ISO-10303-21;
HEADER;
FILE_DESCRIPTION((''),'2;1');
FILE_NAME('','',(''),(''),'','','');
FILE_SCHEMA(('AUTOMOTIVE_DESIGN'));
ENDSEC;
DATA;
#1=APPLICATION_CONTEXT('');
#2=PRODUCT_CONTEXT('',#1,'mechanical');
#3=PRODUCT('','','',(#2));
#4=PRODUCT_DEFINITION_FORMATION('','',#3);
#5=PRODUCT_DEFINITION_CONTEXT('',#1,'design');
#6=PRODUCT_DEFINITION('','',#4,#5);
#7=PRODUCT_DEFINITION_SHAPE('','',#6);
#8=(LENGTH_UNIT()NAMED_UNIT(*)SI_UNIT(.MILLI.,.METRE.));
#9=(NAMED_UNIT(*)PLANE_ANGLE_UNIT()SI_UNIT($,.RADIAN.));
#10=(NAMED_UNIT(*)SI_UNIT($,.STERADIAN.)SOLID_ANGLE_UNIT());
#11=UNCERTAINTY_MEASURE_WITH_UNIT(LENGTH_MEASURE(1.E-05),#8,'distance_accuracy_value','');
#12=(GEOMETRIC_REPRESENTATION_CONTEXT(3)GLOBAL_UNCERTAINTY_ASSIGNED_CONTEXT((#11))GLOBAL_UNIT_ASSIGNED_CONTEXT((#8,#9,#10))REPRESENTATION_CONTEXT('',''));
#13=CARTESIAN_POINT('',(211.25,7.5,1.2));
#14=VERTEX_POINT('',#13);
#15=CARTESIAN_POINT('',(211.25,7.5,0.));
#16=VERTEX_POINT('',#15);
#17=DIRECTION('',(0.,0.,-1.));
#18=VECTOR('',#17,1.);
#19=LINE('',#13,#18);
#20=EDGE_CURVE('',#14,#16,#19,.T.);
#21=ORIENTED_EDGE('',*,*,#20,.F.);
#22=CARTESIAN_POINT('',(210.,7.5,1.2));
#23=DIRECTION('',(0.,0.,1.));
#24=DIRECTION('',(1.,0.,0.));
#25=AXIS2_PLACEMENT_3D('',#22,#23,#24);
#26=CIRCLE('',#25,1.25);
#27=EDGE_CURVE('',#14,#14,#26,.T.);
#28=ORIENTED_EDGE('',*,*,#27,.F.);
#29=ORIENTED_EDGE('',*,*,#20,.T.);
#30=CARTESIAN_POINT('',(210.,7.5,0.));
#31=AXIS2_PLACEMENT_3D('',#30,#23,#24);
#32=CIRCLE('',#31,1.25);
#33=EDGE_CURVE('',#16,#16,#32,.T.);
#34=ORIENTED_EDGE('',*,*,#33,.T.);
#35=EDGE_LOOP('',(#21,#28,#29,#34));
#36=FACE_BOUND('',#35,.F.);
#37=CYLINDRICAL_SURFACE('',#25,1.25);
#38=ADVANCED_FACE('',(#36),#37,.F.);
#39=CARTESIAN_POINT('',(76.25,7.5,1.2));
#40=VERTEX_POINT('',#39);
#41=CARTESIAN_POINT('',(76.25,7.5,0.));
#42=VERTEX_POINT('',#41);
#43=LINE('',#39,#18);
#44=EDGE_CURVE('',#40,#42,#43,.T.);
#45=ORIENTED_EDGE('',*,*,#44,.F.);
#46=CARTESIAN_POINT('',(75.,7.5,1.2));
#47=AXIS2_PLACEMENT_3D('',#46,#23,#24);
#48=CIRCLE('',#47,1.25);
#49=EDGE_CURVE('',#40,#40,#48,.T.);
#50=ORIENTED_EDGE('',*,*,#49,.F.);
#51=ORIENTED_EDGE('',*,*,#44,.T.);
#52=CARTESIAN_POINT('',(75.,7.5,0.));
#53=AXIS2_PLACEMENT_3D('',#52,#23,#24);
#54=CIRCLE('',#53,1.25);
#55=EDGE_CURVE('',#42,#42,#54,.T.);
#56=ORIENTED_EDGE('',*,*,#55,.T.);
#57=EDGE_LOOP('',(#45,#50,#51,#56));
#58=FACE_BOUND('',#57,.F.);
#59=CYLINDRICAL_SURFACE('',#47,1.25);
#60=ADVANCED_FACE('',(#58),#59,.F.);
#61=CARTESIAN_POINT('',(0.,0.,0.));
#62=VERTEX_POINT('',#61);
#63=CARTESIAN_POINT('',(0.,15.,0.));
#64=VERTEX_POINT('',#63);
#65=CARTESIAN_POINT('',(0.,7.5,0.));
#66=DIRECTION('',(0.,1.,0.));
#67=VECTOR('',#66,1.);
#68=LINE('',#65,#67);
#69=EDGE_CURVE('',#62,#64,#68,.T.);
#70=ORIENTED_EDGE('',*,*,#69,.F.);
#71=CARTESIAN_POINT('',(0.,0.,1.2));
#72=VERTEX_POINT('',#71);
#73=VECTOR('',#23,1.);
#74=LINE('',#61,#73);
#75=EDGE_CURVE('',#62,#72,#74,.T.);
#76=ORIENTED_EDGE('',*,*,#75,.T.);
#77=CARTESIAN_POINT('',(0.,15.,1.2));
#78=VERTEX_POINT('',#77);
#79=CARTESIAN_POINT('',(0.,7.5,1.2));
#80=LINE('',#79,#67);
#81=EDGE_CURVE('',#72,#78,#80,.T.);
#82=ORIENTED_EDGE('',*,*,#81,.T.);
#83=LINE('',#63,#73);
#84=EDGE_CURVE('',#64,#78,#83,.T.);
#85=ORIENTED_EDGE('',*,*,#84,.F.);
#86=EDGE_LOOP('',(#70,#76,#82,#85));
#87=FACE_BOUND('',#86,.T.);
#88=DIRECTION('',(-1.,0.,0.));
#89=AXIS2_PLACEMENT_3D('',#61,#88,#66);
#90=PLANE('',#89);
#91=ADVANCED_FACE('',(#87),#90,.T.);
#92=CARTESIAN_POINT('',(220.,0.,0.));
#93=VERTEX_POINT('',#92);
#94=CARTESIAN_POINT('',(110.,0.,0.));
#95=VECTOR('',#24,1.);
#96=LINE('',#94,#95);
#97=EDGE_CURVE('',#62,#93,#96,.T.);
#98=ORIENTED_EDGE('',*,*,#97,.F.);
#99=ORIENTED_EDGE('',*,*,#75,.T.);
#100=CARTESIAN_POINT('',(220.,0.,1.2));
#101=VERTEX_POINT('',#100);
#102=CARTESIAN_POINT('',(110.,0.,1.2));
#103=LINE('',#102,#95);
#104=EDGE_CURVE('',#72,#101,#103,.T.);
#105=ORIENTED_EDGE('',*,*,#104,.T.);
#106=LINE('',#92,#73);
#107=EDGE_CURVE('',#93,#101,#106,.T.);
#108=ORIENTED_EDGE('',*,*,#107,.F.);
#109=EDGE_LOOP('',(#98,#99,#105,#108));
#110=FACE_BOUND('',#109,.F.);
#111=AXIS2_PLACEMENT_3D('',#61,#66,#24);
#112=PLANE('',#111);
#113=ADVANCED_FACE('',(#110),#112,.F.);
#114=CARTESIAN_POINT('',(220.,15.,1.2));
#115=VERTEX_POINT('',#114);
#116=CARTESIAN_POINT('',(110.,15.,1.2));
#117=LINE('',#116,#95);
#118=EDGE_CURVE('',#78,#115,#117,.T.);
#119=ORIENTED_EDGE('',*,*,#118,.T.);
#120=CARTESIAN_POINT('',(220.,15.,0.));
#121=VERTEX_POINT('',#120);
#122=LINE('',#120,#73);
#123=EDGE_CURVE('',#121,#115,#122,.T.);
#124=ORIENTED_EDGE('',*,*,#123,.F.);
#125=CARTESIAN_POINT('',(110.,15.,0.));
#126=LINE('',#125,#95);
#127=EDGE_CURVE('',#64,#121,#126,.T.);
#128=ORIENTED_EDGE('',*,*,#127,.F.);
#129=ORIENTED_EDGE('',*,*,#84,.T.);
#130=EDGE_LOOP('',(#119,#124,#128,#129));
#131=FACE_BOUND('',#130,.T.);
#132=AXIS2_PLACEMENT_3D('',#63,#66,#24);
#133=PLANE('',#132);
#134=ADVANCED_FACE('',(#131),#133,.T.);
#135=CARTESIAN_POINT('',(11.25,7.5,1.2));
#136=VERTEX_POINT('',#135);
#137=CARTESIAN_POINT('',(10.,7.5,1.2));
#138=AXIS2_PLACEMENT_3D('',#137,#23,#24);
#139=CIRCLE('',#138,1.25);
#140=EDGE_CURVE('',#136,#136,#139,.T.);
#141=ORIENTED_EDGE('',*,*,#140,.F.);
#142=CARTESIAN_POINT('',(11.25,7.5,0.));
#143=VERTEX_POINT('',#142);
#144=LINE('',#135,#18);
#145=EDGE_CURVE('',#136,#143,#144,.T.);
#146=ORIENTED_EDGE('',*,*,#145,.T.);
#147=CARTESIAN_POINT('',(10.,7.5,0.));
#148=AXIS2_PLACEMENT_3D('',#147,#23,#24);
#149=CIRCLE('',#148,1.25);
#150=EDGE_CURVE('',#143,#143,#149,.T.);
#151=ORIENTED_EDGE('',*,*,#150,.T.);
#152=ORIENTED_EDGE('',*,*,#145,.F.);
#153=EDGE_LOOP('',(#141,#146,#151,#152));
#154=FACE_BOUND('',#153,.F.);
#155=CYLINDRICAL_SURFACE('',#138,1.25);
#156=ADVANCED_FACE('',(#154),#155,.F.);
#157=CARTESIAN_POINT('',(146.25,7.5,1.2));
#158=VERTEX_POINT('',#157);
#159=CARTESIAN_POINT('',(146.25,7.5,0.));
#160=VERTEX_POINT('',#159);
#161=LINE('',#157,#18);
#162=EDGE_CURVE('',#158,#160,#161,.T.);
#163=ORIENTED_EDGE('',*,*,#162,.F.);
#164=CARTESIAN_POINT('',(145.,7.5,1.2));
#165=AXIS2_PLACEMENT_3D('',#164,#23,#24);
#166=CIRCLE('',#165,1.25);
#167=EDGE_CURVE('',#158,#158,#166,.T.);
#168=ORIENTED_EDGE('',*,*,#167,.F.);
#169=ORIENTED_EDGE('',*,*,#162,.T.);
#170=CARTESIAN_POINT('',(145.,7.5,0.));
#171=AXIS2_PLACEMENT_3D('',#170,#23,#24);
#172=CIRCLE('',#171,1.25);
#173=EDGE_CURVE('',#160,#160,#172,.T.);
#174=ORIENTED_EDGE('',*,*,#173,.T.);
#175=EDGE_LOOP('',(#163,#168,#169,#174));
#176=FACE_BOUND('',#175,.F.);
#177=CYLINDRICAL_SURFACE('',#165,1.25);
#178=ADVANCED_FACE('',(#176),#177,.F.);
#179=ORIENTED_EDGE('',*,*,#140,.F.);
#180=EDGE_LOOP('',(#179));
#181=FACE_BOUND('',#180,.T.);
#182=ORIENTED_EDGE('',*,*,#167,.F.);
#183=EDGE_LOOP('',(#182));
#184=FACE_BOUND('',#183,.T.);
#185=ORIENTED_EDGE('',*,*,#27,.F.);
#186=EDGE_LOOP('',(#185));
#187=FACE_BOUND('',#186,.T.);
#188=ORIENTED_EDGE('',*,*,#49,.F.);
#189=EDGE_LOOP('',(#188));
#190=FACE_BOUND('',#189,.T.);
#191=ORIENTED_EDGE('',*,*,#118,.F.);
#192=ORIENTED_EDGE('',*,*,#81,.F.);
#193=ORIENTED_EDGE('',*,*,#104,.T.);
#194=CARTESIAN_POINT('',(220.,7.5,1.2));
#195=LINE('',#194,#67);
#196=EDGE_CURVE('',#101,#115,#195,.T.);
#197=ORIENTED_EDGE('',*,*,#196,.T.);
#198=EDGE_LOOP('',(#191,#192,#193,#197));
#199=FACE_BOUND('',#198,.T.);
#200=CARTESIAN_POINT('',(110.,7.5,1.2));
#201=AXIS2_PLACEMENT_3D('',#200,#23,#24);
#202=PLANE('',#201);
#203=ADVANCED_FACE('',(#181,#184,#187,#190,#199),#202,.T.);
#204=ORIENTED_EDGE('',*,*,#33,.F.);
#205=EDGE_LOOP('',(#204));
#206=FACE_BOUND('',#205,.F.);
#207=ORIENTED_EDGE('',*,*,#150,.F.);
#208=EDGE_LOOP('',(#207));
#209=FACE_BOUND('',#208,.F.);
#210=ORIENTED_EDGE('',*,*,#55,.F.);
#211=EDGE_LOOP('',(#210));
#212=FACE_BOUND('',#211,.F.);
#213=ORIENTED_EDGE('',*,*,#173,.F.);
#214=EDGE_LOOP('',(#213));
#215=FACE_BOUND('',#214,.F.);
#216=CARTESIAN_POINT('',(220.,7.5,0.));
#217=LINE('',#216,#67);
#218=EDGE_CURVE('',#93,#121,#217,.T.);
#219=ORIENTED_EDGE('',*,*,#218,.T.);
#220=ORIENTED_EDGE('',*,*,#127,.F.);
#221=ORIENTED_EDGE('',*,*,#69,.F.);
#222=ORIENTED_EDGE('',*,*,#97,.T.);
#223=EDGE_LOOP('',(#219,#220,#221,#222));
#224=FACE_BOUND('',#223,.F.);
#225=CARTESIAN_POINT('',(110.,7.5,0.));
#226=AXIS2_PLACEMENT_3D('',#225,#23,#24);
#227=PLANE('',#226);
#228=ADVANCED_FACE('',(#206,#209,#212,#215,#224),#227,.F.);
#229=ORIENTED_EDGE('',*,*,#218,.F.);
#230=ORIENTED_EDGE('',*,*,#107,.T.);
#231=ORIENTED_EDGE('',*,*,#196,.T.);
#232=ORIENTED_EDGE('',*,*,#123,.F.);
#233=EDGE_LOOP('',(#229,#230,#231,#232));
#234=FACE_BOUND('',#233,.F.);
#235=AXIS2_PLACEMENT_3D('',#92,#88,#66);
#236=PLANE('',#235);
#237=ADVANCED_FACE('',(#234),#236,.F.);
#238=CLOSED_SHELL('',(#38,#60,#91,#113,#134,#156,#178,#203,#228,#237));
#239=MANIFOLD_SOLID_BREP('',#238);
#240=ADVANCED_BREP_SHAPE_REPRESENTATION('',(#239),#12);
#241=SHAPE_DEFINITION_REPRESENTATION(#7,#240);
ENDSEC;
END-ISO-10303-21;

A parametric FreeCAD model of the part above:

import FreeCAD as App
import Part
import Sketcher
Q = App.Units.Quantity

doc = App.newDocument("Part")
body = doc.addObject("PartDesign::Body", "Body")

# Sketch on XY plane
sketch1 = body.newObject("Sketcher::SketchObject", "Sketch")
sketch1.AttachmentSupport = (doc.getObject("XY_Plane"), [""])
sketch1.MapMode = "FlatFace"
sketch1.addGeometry(Part.LineSegment(App.Vector(0, 15, 0), App.Vector(0, 0, 0)), False)
sketch1.addGeometry(Part.LineSegment(App.Vector(0, 0, 0), App.Vector(220, 0, 0)), False)
sketch1.addGeometry(Part.LineSegment(App.Vector(220, 0, 0), App.Vector(220, 15, 0)), False)
sketch1.addGeometry(Part.LineSegment(App.Vector(220, 15, 0), App.Vector(0, 15, 0)), False)
sketch1.addConstraint(Sketcher.Constraint("Coincident", 0, 2, 1, 1))
sketch1.addConstraint(Sketcher.Constraint("Coincident", 1, 2, 2, 1))
sketch1.addConstraint(Sketcher.Constraint("Coincident", 2, 2, 3, 1))
sketch1.addConstraint(Sketcher.Constraint("Coincident", 3, 2, 0, 1))
sketch1.addConstraint(Sketcher.Constraint("Vertical", 0))
sketch1.addConstraint(Sketcher.Constraint("Horizontal", 1))
sketch1.addConstraint(Sketcher.Constraint("Vertical", 2))
sketch1.addConstraint(Sketcher.Constraint("Horizontal", 3))
sketch1.addConstraint(Sketcher.Constraint("Coincident", 0, 2, -1, 1))
sketch1.addConstraint(Sketcher.Constraint("DistanceX", 1, 1, 1, 2, Q("220 mm")))
sketch1.addConstraint(Sketcher.Constraint("DistanceY", 0, 2, 0, 1, Q("15 mm")))
pad1 = body.newObject("PartDesign::Pad", "Pad")
pad1.Profile = sketch1
pad1.Length = 1.2

# Sketch on XY plane
sketch2 = body.newObject("Sketcher::SketchObject", "Sketch001")
sketch2.AttachmentSupport = (doc.getObject("XY_Plane"), [""])
sketch2.MapMode = "FlatFace"
sketch2.AttachmentOffset = App.Placement(App.Vector(0, 0, 1.2), App.Rotation())
sketch2.addGeometry(Part.Circle(App.Vector(10, 7.5, 0), App.Vector(0, 0, 1), 1.2), False)
sketch2.addGeometry(Part.Circle(App.Vector(210, 7.5, 0), App.Vector(0, 0, 1), 1.2), False)
sketch2.addGeometry(Part.Circle(App.Vector(75, 7.5, 0), App.Vector(0, 0, 1), 1.2), False)
sketch2.addGeometry(Part.Circle(App.Vector(145, 7.5, 0), App.Vector(0, 0, 1), 1.2), False)
sketch2.addConstraint(Sketcher.Constraint("Equal", 0, 1))
sketch2.addConstraint(Sketcher.Constraint("Equal", 1, 2))
sketch2.addConstraint(Sketcher.Constraint("Equal", 2, 3))
sketch2.addConstraint(Sketcher.Constraint("Horizontal", 0, 3, 1, 3))
sketch2.addConstraint(Sketcher.Constraint("Horizontal", 1, 3, 2, 3))
sketch2.addConstraint(Sketcher.Constraint("Horizontal", 2, 3, 3, 3))
sketch2.addConstraint(Sketcher.Constraint("Diameter", 0, Q("2.5 mm")))
sketch2.addConstraint(Sketcher.Constraint("DistanceX", -1, 1, 0, 3, Q("10 mm")))
sketch2.addConstraint(Sketcher.Constraint("DistanceX", -1, 1, 1, 3, Q("210 mm")))
sketch2.addConstraint(Sketcher.Constraint("DistanceX", -1, 1, 2, 3, Q("75 mm")))
sketch2.addConstraint(Sketcher.Constraint("DistanceX", -1, 1, 3, 3, Q("145 mm")))
sketch2.addConstraint(Sketcher.Constraint("DistanceY", -1, 1, 0, 3, Q("7.5 mm")))
pocket1 = body.newObject("PartDesign::Pocket", "Pocket")
pocket1.Profile = sketch2
pocket1.Type = "ThroughAll"

doc.recompute()
